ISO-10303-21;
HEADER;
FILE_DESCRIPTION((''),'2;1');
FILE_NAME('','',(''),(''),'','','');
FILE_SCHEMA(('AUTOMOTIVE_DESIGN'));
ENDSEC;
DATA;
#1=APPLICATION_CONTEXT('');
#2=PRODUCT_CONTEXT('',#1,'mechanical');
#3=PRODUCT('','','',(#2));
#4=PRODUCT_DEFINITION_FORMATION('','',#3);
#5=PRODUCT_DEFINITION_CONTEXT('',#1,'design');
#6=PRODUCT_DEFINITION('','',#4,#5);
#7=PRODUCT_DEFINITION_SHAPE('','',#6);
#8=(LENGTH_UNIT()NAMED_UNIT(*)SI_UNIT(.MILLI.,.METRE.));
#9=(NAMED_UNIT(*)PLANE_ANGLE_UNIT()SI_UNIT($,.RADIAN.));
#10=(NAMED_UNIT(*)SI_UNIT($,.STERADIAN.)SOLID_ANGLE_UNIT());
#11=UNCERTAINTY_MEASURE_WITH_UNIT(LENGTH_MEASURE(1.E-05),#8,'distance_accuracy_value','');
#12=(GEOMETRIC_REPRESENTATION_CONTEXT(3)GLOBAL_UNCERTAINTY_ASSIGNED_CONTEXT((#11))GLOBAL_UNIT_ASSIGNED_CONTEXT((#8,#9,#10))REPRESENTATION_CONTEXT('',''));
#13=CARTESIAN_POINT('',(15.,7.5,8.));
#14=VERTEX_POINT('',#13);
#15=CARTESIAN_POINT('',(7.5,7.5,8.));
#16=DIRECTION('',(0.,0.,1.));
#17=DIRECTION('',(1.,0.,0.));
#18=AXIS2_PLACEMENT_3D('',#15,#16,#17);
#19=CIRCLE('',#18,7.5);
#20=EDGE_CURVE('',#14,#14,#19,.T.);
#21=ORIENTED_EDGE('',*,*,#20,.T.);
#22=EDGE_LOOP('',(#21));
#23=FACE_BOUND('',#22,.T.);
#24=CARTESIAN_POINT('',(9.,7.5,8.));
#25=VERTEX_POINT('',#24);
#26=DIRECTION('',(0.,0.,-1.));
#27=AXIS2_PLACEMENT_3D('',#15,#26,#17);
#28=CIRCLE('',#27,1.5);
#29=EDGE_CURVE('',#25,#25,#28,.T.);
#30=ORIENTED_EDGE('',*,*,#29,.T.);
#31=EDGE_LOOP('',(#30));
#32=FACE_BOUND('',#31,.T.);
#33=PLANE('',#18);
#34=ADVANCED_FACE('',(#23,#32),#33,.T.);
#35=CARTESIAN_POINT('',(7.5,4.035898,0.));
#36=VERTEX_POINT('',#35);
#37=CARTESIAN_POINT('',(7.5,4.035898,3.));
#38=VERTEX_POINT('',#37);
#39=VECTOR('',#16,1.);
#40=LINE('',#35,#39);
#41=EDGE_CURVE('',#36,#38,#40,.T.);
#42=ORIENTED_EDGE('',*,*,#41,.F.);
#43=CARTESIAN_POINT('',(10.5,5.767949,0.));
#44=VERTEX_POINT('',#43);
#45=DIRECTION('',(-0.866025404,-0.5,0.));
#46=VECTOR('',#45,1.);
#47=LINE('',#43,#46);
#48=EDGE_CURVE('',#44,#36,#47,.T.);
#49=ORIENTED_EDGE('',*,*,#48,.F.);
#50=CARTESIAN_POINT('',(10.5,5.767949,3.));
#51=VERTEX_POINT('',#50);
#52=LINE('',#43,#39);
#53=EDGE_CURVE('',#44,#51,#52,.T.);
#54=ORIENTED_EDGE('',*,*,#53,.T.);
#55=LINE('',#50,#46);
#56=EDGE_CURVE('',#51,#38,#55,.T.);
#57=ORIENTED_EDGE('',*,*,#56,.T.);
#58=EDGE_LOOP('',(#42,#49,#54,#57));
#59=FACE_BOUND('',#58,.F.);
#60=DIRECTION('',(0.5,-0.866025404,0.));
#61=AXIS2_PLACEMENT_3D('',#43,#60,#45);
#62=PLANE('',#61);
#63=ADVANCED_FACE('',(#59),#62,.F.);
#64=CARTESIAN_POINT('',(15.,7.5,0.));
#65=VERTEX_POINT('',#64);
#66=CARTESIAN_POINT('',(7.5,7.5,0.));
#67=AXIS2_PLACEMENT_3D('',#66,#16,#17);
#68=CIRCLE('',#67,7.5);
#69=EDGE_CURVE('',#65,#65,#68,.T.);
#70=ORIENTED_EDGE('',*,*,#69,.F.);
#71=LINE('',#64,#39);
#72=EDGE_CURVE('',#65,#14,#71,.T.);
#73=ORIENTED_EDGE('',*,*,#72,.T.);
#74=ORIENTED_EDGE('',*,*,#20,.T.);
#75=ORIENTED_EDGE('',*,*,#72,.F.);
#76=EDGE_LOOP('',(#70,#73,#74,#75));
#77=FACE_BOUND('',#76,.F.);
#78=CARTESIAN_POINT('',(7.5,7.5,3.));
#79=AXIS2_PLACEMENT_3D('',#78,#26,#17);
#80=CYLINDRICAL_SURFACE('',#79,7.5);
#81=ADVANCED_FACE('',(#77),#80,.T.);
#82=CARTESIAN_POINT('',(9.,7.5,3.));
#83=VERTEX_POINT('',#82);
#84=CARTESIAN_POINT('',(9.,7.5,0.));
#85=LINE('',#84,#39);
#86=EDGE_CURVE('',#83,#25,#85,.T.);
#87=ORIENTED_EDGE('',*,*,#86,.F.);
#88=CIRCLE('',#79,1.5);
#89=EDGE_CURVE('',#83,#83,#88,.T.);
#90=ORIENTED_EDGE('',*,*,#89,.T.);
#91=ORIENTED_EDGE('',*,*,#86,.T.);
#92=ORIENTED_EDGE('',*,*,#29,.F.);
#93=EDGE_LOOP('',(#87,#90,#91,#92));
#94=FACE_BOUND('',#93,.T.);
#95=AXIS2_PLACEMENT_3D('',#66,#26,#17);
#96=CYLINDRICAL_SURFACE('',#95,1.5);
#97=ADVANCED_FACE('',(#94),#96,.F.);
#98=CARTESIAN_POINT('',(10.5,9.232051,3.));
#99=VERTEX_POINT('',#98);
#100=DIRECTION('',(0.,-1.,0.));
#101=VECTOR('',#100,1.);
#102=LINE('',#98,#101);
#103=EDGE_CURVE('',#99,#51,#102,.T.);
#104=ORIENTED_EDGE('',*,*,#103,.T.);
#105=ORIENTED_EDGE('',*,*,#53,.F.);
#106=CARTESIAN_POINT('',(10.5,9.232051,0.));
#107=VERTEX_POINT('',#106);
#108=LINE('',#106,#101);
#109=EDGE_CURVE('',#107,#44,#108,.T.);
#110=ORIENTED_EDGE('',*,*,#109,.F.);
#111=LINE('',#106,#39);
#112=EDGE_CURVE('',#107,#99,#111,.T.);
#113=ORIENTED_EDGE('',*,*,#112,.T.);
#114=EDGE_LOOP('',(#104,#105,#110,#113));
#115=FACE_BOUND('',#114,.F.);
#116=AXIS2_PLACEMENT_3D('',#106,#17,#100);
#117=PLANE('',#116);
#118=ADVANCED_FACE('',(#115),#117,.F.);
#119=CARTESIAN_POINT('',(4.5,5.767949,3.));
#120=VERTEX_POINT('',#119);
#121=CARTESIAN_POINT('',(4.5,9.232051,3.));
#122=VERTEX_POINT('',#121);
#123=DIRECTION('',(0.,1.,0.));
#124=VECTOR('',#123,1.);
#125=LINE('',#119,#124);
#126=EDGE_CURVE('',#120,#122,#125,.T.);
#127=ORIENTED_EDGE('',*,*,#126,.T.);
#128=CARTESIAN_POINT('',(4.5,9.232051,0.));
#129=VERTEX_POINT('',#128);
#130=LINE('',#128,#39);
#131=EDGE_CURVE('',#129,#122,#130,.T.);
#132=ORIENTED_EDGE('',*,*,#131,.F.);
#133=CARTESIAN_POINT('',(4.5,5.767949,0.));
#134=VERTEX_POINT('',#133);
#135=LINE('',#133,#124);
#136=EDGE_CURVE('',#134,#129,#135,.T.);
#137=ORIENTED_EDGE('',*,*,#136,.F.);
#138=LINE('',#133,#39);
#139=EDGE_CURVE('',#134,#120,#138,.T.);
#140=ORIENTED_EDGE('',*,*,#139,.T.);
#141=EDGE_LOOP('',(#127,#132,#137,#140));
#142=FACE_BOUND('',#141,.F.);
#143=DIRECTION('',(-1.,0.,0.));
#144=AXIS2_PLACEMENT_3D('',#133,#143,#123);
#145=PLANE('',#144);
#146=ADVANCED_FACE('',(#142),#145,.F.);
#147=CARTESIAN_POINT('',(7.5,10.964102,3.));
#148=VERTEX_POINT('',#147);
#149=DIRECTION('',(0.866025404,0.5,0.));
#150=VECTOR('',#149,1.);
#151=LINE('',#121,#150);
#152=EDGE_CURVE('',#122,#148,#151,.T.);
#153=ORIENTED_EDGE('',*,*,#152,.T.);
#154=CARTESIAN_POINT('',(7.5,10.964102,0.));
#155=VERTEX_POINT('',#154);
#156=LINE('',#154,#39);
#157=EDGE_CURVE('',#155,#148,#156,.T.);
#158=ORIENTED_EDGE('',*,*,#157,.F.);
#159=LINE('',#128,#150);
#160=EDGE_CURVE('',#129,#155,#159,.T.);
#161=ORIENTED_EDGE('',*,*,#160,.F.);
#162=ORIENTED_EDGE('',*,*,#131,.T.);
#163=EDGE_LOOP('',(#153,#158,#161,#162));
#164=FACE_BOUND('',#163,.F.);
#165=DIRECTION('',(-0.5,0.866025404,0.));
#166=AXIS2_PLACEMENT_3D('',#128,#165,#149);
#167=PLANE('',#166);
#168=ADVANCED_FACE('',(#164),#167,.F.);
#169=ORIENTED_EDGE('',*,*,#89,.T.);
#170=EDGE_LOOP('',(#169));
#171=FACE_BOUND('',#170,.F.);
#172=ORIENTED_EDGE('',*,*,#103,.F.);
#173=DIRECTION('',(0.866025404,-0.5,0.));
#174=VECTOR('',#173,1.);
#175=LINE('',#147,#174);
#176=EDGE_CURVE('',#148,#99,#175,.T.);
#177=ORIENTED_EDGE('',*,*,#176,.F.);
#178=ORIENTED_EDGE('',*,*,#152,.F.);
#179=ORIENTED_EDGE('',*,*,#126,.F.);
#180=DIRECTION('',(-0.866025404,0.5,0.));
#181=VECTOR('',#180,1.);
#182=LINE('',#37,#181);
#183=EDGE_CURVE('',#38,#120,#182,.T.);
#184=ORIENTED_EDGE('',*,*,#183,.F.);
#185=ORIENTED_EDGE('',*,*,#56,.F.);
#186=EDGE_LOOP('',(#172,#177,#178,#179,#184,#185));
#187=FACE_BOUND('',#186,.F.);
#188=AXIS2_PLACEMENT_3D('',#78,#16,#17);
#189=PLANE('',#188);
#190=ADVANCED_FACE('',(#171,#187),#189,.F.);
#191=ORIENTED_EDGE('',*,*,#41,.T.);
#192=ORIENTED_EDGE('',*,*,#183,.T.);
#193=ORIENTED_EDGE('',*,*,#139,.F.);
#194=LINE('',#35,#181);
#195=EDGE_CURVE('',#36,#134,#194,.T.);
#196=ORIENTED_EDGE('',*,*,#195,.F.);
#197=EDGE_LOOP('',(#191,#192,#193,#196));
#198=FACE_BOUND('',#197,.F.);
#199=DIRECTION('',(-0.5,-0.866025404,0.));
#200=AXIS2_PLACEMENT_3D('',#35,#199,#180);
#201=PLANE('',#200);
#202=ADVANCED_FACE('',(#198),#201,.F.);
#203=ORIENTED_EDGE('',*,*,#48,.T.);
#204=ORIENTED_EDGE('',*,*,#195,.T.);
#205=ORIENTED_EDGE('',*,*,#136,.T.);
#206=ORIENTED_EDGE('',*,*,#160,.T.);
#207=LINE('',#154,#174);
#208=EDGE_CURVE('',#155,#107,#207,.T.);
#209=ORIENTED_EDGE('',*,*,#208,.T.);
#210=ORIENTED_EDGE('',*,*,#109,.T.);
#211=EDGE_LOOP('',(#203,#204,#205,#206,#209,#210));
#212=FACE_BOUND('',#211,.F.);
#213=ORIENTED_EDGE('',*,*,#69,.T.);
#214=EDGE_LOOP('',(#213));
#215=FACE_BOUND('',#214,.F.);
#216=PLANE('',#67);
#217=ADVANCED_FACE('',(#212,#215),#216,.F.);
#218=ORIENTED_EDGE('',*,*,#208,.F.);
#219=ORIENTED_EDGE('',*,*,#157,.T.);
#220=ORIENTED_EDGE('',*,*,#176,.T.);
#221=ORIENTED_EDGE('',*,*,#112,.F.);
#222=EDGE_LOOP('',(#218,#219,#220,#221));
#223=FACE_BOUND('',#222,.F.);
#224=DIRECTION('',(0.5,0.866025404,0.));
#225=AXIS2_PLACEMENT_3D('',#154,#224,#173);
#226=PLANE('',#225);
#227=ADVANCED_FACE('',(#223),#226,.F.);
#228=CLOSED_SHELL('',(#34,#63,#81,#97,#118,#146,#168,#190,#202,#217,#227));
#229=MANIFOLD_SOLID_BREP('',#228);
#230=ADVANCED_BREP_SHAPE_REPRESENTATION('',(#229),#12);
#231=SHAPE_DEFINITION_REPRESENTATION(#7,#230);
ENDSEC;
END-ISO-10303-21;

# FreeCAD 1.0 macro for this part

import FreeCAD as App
import Part
import Sketcher
from FreeCAD import Vector
Q = App.Units.Quantity


def add_polygon(sketch, points):
    """Adds a closed chain of lines whose ends are joined by coincident constraints."""
    first, n = sketch.GeometryCount, len(points)
    for a, b in zip(points, points[1:] + points[:1]):
        sketch.addGeometry(Part.LineSegment(App.Vector(*a, 0), App.Vector(*b, 0)), False)
    for i in range(n):
        sketch.addConstraint(Sketcher.Constraint("Coincident", first + i, 2, first + (i + 1) % n, 1))

doc = App.newDocument("Part")
body = doc.addObject("PartDesign::Body", "Body")

# Sketch on XY plane
sketch1 = doc.addObject("Sketcher::SketchObject", "Sketch")
body.addObject(sketch1)
sketch1.AttachmentSupport = (doc.XY_Plane, [""])
sketch1.MapMode = "FlatFace"
sketch1.addGeometry(Part.Circle(Vector(7.5, 7.5, 0), Vector(0, 0, 1), 7.5), False)  # 0
add_polygon(sketch1, [(4.5, 9.2), (7.5, 11), (10.5, 9.2), (10.5, 5.8), (7.5, 4), (4.5, 5.8)])  # lines 1-6
sketch1.addConstraint([
    Sketcher.Constraint("Vertical", 3),
    Sketcher.Constraint("Vertical", 6),
    Sketcher.Constraint("Parallel", 1, 4),
    Sketcher.Constraint("Parallel", 2, 5),
    Sketcher.Constraint("Horizontal", 3, 2, 5, 2),
    Sketcher.Constraint("Horizontal", 2, 2, 6, 2),
    Sketcher.Constraint("Vertical", 0, 3, 1, 2),
    Sketcher.Constraint("Vertical", 1, 2, 4, 2),
    Sketcher.Constraint("Diameter", 0, Q("15 mm")),
    Sketcher.Constraint("Angle", 1, Q("30 deg")),
    Sketcher.Constraint("DistanceX", 1, 2, 2, 2, Q("3 mm")),
    Sketcher.Constraint("DistanceX", -1, 1, 0, 3, Q("7.5 mm")),
    Sketcher.Constraint("DistanceY", -1, 1, 0, 3, Q("7.5 mm")),
    Sketcher.Constraint("DistanceY", 3, 2, 3, 1, Q("3.464102 mm")),
    Sketcher.Constraint("DistanceY", -1, 1, 1, 2, Q("10.964102 mm")),
])
pad1 = doc.addObject("PartDesign::Pad", "Pad")
body.addObject(pad1)
pad1.Profile = sketch1
pad1.Length = 3

# Sketch on XY plane
sketch2 = doc.addObject("Sketcher::SketchObject", "Sketch001")
body.addObject(sketch2)
sketch2.AttachmentSupport = (doc.XY_Plane, [""])
sketch2.MapMode = "FlatFace"
sketch2.AttachmentOffset = App.Placement(Vector(0, 0, 3), App.Rotation())
sketch2.addGeometry(Part.Circle(Vector(8, 8, 0), Vector(0, 0, 1), 8), False)
sketch2.addConstraint([
    Sketcher.Constraint("Diameter", 0, Q("15 mm")),
    Sketcher.Constraint("DistanceX", -1, 1, 0, 3, Q("7.5 mm")),
    Sketcher.Constraint("DistanceY", -1, 1, 0, 3, Q("7.5 mm")),
])
pad2 = doc.addObject("PartDesign::Pad", "Pad001")
body.addObject(pad2)
pad2.Profile = sketch2
pad2.Length = 5

# Sketch on XY plane
sketch3 = doc.addObject("Sketcher::SketchObject", "Sketch002")
body.addObject(sketch3)
sketch3.AttachmentSupport = (doc.XY_Plane, [""])
sketch3.MapMode = "FlatFace"
sketch3.addGeometry(Part.Circle(Vector(7.5, 7.5, 0), Vector(0, 0, 1), 1.5), False)
sketch3.addConstraint([
    Sketcher.Constraint("Diameter", 0, Q("3 mm")),
    Sketcher.Constraint("DistanceX", -1, 1, 0, 3, Q("7.5 mm")),
    Sketcher.Constraint("DistanceY", -1, 1, 0, 3, Q("7.5 mm")),
])
pocket1 = doc.addObject("PartDesign::Pocket", "Pocket")
body.addObject(pocket1)
pocket1.Profile = sketch3
pocket1.Length = 25
pocket1.Reversed = True

doc.recompute()
